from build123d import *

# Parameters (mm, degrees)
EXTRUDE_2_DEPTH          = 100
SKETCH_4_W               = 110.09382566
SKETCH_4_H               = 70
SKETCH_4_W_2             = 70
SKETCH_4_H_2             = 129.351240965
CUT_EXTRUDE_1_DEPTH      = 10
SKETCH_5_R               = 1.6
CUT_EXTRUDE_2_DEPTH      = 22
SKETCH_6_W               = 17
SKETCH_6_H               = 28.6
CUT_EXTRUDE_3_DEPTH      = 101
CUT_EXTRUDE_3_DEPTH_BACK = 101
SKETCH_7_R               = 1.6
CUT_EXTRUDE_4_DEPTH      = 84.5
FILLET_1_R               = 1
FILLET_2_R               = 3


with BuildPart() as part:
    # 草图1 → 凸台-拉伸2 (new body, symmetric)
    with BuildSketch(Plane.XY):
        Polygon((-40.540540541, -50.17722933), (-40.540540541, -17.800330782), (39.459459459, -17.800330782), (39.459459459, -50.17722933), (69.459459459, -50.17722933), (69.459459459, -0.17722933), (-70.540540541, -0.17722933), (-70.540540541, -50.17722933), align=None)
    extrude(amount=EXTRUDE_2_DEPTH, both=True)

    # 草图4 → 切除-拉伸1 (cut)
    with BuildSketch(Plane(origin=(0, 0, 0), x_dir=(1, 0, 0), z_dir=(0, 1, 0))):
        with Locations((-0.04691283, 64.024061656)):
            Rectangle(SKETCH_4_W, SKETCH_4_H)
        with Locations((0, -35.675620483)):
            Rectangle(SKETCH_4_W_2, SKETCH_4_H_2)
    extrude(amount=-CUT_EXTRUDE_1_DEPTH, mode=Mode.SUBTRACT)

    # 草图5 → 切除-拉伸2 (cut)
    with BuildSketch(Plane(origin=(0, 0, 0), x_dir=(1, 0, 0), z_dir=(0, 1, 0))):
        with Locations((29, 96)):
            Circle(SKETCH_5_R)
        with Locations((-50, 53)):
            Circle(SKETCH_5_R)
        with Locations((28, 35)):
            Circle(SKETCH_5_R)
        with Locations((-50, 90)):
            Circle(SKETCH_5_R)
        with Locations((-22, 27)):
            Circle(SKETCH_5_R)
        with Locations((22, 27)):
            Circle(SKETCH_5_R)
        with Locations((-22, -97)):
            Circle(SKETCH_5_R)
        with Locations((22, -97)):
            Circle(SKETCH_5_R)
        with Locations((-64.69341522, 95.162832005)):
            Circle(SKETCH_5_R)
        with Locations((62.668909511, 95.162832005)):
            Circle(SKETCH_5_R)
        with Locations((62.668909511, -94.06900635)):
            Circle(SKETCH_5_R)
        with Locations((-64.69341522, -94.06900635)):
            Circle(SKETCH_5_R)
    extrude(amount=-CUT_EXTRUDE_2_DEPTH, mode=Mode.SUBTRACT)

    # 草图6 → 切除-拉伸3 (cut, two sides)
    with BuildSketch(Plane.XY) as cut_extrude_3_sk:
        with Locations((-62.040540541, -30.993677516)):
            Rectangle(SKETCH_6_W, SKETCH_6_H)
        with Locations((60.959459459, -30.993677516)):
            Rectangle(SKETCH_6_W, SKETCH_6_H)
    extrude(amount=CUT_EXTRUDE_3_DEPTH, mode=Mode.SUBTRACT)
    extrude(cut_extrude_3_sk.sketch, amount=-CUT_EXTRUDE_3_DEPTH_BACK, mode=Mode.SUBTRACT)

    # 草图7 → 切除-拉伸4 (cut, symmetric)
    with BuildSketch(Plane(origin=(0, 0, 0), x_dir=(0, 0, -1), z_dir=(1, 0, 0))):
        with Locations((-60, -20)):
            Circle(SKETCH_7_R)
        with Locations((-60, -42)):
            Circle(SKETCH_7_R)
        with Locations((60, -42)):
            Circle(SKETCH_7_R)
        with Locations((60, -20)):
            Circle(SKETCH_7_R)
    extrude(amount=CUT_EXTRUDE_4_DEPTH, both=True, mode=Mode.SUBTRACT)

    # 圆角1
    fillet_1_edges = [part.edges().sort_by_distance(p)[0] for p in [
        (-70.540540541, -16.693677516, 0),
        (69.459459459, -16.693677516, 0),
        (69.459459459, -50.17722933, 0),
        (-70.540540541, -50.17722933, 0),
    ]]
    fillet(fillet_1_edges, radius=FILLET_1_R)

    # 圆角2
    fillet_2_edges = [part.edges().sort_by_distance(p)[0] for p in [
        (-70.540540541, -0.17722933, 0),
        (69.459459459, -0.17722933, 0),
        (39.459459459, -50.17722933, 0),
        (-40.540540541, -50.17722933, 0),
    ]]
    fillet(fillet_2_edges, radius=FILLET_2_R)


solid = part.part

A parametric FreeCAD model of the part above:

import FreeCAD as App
import Part
import Sketcher


def edges_at(feature, points):
    """Names of the edges that pass closest to the given points."""
    edges = feature.Shape.Edges
    near = lambda p: min(range(len(edges)), key=lambda i: edges[i].distToShape(Part.Vertex(*p))[0])
    return sorted({f"Edge{near(p) + 1}" for p in points})

doc = App.newDocument("Part")
params = doc.addObject("Spreadsheet::Sheet", "Params")
for row, (alias, value) in enumerate([
    ("sketch1_width", "80 mm"),
    ("sketch1_width2", "30 mm"),
    ("sketch1_height", "50 mm"),
    ("pad1_length", "200 mm"),
    ("sketch2_width", "70 mm"),
    ("pocket1_length", "10 mm"),
    ("sketch3_diameter", "3.2 mm"),
    ("pocket2_length", "22 mm"),
    ("sketch4_width", "17 mm"),
    ("sketch4_height", "28.6 mm"),
    ("sketch5_diameter", "3.2 mm"),
    ("pocket4_length", "169 mm"),
    ("fillet_radius", "1 mm"),
    ("fillet2_radius", "3 mm"),
], start=1):
    params.set(f"A{row}", alias)
    params.set(f"B{row}", "=" + value)
    params.setAlias(f"B{row}", alias)

body = doc.addObject("PartDesign::Body", "Body")

sketch1 = body.newObject("Sketcher::SketchObject", "Sketch")
sketch1.AttachmentSupport = (doc.getObject("XY_Plane"), [""])
sketch1.MapMode = "FlatFace"
sketch1.addGeometry([
    Part.LineSegment(App.Vector(-40.540541, -50.177229, 0), App.Vector(-40.540541, -17.800331, 0)),
    Part.LineSegment(App.Vector(-40.540541, -17.800331, 0), App.Vector(39.459459, -17.800331, 0)),
    Part.LineSegment(App.Vector(39.459459, -17.800331, 0), App.Vector(39.459459, -50.177229, 0)),
    Part.LineSegment(App.Vector(39.459459, -50.177229, 0), App.Vector(69.459459, -50.177229, 0)),
    Part.LineSegment(App.Vector(69.459459, -50.177229, 0), App.Vector(69.459459, -0.177229, 0)),
    Part.LineSegment(App.Vector(69.459459, -0.177229, 0), App.Vector(-70.540541, -0.177229, 0)),
    Part.LineSegment(App.Vector(-70.540541, -0.177229, 0), App.Vector(-70.540541, -50.177229, 0)),
    Part.LineSegment(App.Vector(-70.540541, -50.177229, 0), App.Vector(-40.540541, -50.177229, 0)),
], False)
sketch1.addConstraint([
    Sketcher.Constraint("Coincident", 0, 2, 1, 1),
    Sketcher.Constraint("Coincident", 1, 2, 2, 1),
    Sketcher.Constraint("Coincident", 2, 2, 3, 1),
    Sketcher.Constraint("Coincident", 3, 2, 4, 1),
    Sketcher.Constraint("Coincident", 4, 2, 5, 1),
    Sketcher.Constraint("Coincident", 5, 2, 6, 1),
    Sketcher.Constraint("Coincident", 6, 2, 7, 1),
    Sketcher.Constraint("Coincident", 7, 2, 0, 1),
    Sketcher.Constraint("Vertical", 0),
    Sketcher.Constraint("Horizontal", 1),
    Sketcher.Constraint("Vertical", 2),
    Sketcher.Constraint("Horizontal", 3),
    Sketcher.Constraint("Vertical", 4),
    Sketcher.Constraint("Horizontal", 5),
    Sketcher.Constraint("Vertical", 6),
    Sketcher.Constraint("Horizontal", 7),
    Sketcher.Constraint("Horizontal", 3, 2, 6, 2),
    Sketcher.Constraint("Equal", 3, 7),
    Sketcher.Constraint("DistanceX", 1, 1, 1, 2, 80.0),
    Sketcher.Constraint("DistanceX", 3, 1, 3, 2, 30.0),
    Sketcher.Constraint("DistanceY", 4, 1, 4, 2, 50.0),
    Sketcher.Constraint("DistanceY", 0, 1, 0, 2, 32.376899),
    Sketcher.Constraint("DistanceX", 0, 2, -1, 1, 40.540541),
    Sketcher.Constraint("DistanceY", 0, 2, -1, 1, 17.800331),
])
sketch1.setExpression("Constraints[18]", "Params.sketch1_width")
sketch1.setExpression("Constraints[19]", "Params.sketch1_width2")
sketch1.setExpression("Constraints[20]", "Params.sketch1_height")
pad1 = body.newObject("PartDesign::Pad", "Pad")
pad1.Profile = sketch1
pad1.setExpression("Length", "Params.pad1_length")
pad1.Midplane = True

sketch2 = body.newObject("Sketcher::SketchObject", "Sketch001")
sketch2.AttachmentSupport = (doc.getObject("XZ_Plane"), [""])
sketch2.MapMode = "FlatFace"
sketch2.addGeometry([
    Part.LineSegment(App.Vector(-55.093826, -99.024062, 0), App.Vector(-55.093826, -29.024062, 0)),
    Part.LineSegment(App.Vector(-55.093826, -29.024062, 0), App.Vector(55, -29.024062, 0)),
    Part.LineSegment(App.Vector(55, -29.024062, 0), App.Vector(55, -99.024062, 0)),
    Part.LineSegment(App.Vector(55, -99.024062, 0), App.Vector(-55.093826, -99.024062, 0)),
    Part.LineSegment(App.Vector(-35, -29, 0), App.Vector(-35, 100.351241, 0)),
    Part.LineSegment(App.Vector(-35, 100.351241, 0), App.Vector(35, 100.351241, 0)),
    Part.LineSegment(App.Vector(35, 100.351241, 0), App.Vector(35, -29, 0)),
    Part.LineSegment(App.Vector(35, -29, 0), App.Vector(-35, -29, 0)),
], False)
sketch2.addConstraint([
    Sketcher.Constraint("Coincident", 0, 2, 1, 1),
    Sketcher.Constraint("Coincident", 1, 2, 2, 1),
    Sketcher.Constraint("Coincident", 2, 2, 3, 1),
    Sketcher.Constraint("Coincident", 3, 2, 0, 1),
    Sketcher.Constraint("Coincident", 4, 2, 5, 1),
    Sketcher.Constraint("Coincident", 5, 2, 6, 1),
    Sketcher.Constraint("Coincident", 6, 2, 7, 1),
    Sketcher.Constraint("Coincident", 7, 2, 4, 1),
    Sketcher.Constraint("Vertical", 0),
    Sketcher.Constraint("Horizontal", 1),
    Sketcher.Constraint("Vertical", 2),
    Sketcher.Constraint("Horizontal", 3),
    Sketcher.Constraint("Vertical", 4),
    Sketcher.Constraint("Horizontal", 5),
    Sketcher.Constraint("Vertical", 6),
    Sketcher.Constraint("Horizontal", 7),
    Sketcher.Constraint("Equal", 7, 0),
    Sketcher.Constraint("DistanceX", 5, 1, 5, 2, 70.0),
    Sketcher.Constraint("DistanceX", -1, 1, 1, 2, 55.0),
    Sketcher.Constraint("DistanceX", 4, 2, -1, 1, 35.0),
    Sketcher.Constraint("DistanceY", 6, 2, -1, 1, 29.0),
    Sketcher.Constraint("DistanceY", 4, 1, 4, 2, 129.351241),
    Sketcher.Constraint("DistanceX", 1, 1, 1, 2, 110.093826),
    Sketcher.Constraint("DistanceY", 0, 2, -1, 1, 29.024062),
])
sketch2.setExpression("Constraints[17]", "Params.sketch2_width")
pocket1 = body.newObject("PartDesign::Pocket", "Pocket")
pocket1.Profile = sketch2
pocket1.setExpression("Length", "Params.pocket1_length")
pocket1.Reversed = True

sketch3 = body.newObject("Sketcher::SketchObject", "Sketch002")
sketch3.AttachmentSupport = (doc.getObject("XZ_Plane"), [""])
sketch3.MapMode = "FlatFace"
sketch3.addGeometry([
    Part.Circle(App.Vector(29, -96, 0), App.Vector(0, 0, 1), 1.6),
    Part.Circle(App.Vector(-50, -53, 0), App.Vector(0, 0, 1), 1.6),
    Part.Circle(App.Vector(28, -35, 0), App.Vector(0, 0, 1), 1.6),
    Part.Circle(App.Vector(-50, -90, 0), App.Vector(0, 0, 1), 1.6),
    Part.Circle(App.Vector(-22, -27, 0), App.Vector(0, 0, 1), 1.6),
    Part.Circle(App.Vector(22, -27, 0), App.Vector(0, 0, 1), 1.6),
    Part.Circle(App.Vector(-22, 97, 0), App.Vector(0, 0, 1), 1.6),
    Part.Circle(App.Vector(22, 97, 0), App.Vector(0, 0, 1), 1.6),
    Part.Circle(App.Vector(-64.693415, -95.162832, 0), App.Vector(0, 0, 1), 1.6),
    Part.Circle(App.Vector(62.66891, -95.162832, 0), App.Vector(0, 0, 1), 1.6),
    Part.Circle(App.Vector(62.66891, 94.069006, 0), App.Vector(0, 0, 1), 1.6),
    Part.Circle(App.Vector(-64.693415, 94.069006, 0), App.Vector(0, 0, 1), 1.6),
], False)
sketch3.addConstraint([
    Sketcher.Constraint("Equal", 0, 1),
    Sketcher.Constraint("Equal", 1, 2),
    Sketcher.Constraint("Equal", 2, 3),
    Sketcher.Constraint("Equal", 3, 4),
    Sketcher.Constraint("Equal", 4, 5),
    Sketcher.Constraint("Equal", 5, 6),
    Sketcher.Constraint("Equal", 6, 7),
    Sketcher.Constraint("Equal", 7, 8),
    Sketcher.Constraint("Equal", 8, 9),
    Sketcher.Constraint("Equal", 9, 10),
    Sketcher.Constraint("Equal", 10, 11),
    Sketcher.Constraint("Symmetric", 4, 3, 5, 3, -2),
    Sketcher.Constraint("Symmetric", 6, 3, 7, 3, -2),
    Sketcher.Constraint("Horizontal", 8, 3, 9, 3),
    Sketcher.Constraint("Horizontal", 10, 3, 11, 3),
    Sketcher.Constraint("Vertical", 1, 3, 3, 3),
    Sketcher.Constraint("Vertical", 4, 3, 6, 3),
    Sketcher.Constraint("Vertical", 9, 3, 10, 3),
    Sketcher.Constraint("Vertical", 8, 3, 11, 3),
    Sketcher.Constraint("Diameter", 0, 3.2),
    Sketcher.Constraint("DistanceX", -1, 1, 0, 3, 29.0),
    Sketcher.Constraint("DistanceY", 0, 3, -1, 1, 96.0),
    Sketcher.Constraint("DistanceX", 1, 3, -1, 1, 50.0),
    Sketcher.Constraint("DistanceY", 1, 3, -1, 1, 53.0),
    Sketcher.Constraint("DistanceX", -1, 1, 2, 3, 28.0),
    Sketcher.Constraint("DistanceY", 2, 3, -1, 1, 35.0),
    Sketcher.Constraint("DistanceY", 3, 3, -1, 1, 90.0),
    Sketcher.Constraint("DistanceX", 4, 3, -1, 1, 22.0),
    Sketcher.Constraint("DistanceY", 4, 3, -1, 1, 27.0),
    Sketcher.Constraint("DistanceY", -1, 1, 6, 3, 97.0),
    Sketcher.Constraint("DistanceX", -1, 1, 9, 3, 62.66891),
    Sketcher.Constraint("DistanceX", 8, 3, -1, 1, 64.693415),
    Sketcher.Constraint("DistanceY", 8, 3, -1, 1, 95.162832),
    Sketcher.Constraint("DistanceY", -1, 1, 10, 3, 94.069006),
])
sketch3.setExpression("Constraints[19]", "Params.sketch3_diameter")
pocket2 = body.newObject("PartDesign::Pocket", "Pocket001")
pocket2.Profile = sketch3
pocket2.setExpression("Length", "Params.pocket2_length")
pocket2.Reversed = True

sketch4 = body.newObject("Sketcher::SketchObject", "Sketch003")
sketch4.AttachmentSupport = (doc.getObject("XY_Plane"), [""])
sketch4.MapMode = "FlatFace"
sketch4.addGeometry([
    Part.LineSegment(App.Vector(-70.540541, -16.693678, 0), App.Vector(-70.540541, -45.293678, 0)),
    Part.LineSegment(App.Vector(-70.540541, -45.293678, 0), App.Vector(-53.540541, -45.293678, 0)),
    Part.LineSegment(App.Vector(-53.540541, -45.293678, 0), App.Vector(-53.540541, -16.693678, 0)),
    Part.LineSegment(App.Vector(-53.540541, -16.693678, 0), App.Vector(-70.540541, -16.693678, 0)),
    Part.LineSegment(App.Vector(52.459459, -16.693678, 0), App.Vector(52.459459, -45.293678, 0)),
    Part.LineSegment(App.Vector(52.459459, -45.293678, 0), App.Vector(69.459459, -45.293678, 0)),
    Part.LineSegment(App.Vector(69.459459, -45.293678, 0), App.Vector(69.459459, -16.693678, 0)),
    Part.LineSegment(App.Vector(69.459459, -16.693678, 0), App.Vector(52.459459, -16.693678, 0)),
], False)
sketch4.addConstraint([
    Sketcher.Constraint("Coincident", 0, 2, 1, 1),
    Sketcher.Constraint("Coincident", 1, 2, 2, 1),
    Sketcher.Constraint("Coincident", 2, 2, 3, 1),
    Sketcher.Constraint("Coincident", 3, 2, 0, 1),
    Sketcher.Constraint("Coincident", 4, 2, 5, 1),
    Sketcher.Constraint("Coincident", 5, 2, 6, 1),
    Sketcher.Constraint("Coincident", 6, 2, 7, 1),
    Sketcher.Constraint("Coincident", 7, 2, 4, 1),
    Sketcher.Constraint("Vertical", 0),
    Sketcher.Constraint("Horizontal", 1),
    Sketcher.Constraint("Vertical", 2),
    Sketcher.Constraint("Horizontal", 3),
    Sketcher.Constraint("Vertical", 4),
    Sketcher.Constraint("Horizontal", 5),
    Sketcher.Constraint("Vertical", 6),
    Sketcher.Constraint("Horizontal", 7),
    Sketcher.Constraint("Horizontal", 1, 2, 4, 2),
    Sketcher.Constraint("Horizontal", 3, 2, 6, 2),
    Sketcher.Constraint("Equal", 3, 5),
    Sketcher.Constraint("DistanceX", 1, 1, 1, 2, 17.0),
    Sketcher.Constraint("DistanceY", 0, 2, 0, 1, 28.6),
    Sketcher.Constraint("DistanceX", 1, 2, 4, 2, 106.0),
    Sketcher.Constraint("DistanceX", 0, 2, -1, 1, 70.540541),
    Sketcher.Constraint("DistanceY", 0, 2, -1, 1, 45.293678),
])
sketch4.setExpression("Constraints[19]", "Params.sketch4_width")
sketch4.setExpression("Constraints[20]", "Params.sketch4_height")
pocket3 = body.newObject("PartDesign::Pocket", "Pocket002")
pocket3.Profile = sketch4
pocket3.Type = "ThroughAll"
pocket3.Midplane = True

sketch5 = body.newObject("Sketcher::SketchObject", "Sketch004")
sketch5.AttachmentSupport = (doc.getObject("YZ_Plane"), [""])
sketch5.MapMode = "FlatFace"
sketch5.addGeometry([
    Part.Circle(App.Vector(-20, 60, 0), App.Vector(0, 0, 1), 1.6),
    Part.Circle(App.Vector(-42, 60, 0), App.Vector(0, 0, 1), 1.6),
    Part.Circle(App.Vector(-42, -60, 0), App.Vector(0, 0, 1), 1.6),
    Part.Circle(App.Vector(-20, -60, 0), App.Vector(0, 0, 1), 1.6),
], False)
sketch5.addConstraint([
    Sketcher.Constraint("Equal", 0, 1),
    Sketcher.Constraint("Equal", 1, 2),
    Sketcher.Constraint("Equal", 2, 3),
    Sketcher.Constraint("Symmetric", 1, 3, 2, 3, -1),
    Sketcher.Constraint("Symmetric", 0, 3, 3, 3, -1),
    Sketcher.Constraint("Horizontal", 0, 3, 1, 3),
    Sketcher.Constraint("Diameter", 0, 3.2),
    Sketcher.Constraint("DistanceX", 0, 3, -1, 1, 20.0),
    Sketcher.Constraint("DistanceY", -1, 1, 0, 3, 60.0),
    Sketcher.Constraint("DistanceX", 1, 3, -1, 1, 42.0),
])
sketch5.setExpression("Constraints[6]", "Params.sketch5_diameter")
pocket4 = body.newObject("PartDesign::Pocket", "Pocket003")
pocket4.Profile = sketch5
pocket4.setExpression("Length", "Params.pocket4_length")
pocket4.Midplane = True
doc.recompute()

fillet = body.newObject("PartDesign::Fillet", "Fillet")
fillet.Base = (pocket4, edges_at(pocket4, [
    (-70.541, -16.694, 0),
    (69.459, -16.694, 0),
    (69.459, -50.177, 0),
    (-70.541, -50.177, 0),
]))
fillet.setExpression("Radius", "Params.fillet_radius")
doc.recompute()

fillet2 = body.newObject("PartDesign::Fillet", "Fillet001")
fillet2.Base = (fillet, edges_at(fillet, [
    (-70.541, -0.177, 0),
    (69.459, -0.177, 0),
    (39.459, -50.177, 0),
    (-40.541, -50.177, 0),
]))
fillet2.setExpression("Radius", "Params.fillet2_radius")

doc.recompute()
